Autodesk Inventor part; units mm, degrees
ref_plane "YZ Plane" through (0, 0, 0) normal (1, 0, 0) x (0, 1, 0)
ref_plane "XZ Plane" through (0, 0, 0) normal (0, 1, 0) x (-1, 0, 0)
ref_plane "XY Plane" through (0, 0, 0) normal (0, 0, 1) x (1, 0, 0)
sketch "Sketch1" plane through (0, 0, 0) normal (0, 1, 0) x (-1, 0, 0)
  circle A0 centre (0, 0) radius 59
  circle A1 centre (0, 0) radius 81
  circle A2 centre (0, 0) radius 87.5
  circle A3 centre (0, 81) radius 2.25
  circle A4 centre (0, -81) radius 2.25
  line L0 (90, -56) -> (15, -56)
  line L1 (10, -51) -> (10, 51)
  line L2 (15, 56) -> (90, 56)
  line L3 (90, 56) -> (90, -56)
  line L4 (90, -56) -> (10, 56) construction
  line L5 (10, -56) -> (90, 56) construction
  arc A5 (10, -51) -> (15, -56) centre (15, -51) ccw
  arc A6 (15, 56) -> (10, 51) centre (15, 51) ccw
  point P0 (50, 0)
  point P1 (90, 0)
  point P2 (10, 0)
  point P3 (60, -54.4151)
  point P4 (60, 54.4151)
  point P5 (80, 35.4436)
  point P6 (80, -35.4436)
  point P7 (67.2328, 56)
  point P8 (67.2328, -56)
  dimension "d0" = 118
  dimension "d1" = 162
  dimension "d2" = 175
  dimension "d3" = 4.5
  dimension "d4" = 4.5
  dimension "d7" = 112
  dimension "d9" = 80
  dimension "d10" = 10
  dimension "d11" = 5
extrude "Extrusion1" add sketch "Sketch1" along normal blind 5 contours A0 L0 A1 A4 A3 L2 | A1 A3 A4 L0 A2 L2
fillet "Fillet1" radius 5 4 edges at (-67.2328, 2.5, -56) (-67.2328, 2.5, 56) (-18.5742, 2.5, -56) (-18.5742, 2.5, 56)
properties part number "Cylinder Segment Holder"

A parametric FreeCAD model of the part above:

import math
import FreeCAD as App
import Part
import Sketcher


def edges_at(feature, points):
    """Names of the edges that pass closest to the given points."""
    edges = feature.Shape.Edges
    near = lambda p: min(range(len(edges)), key=lambda i: edges[i].distToShape(Part.Vertex(*p))[0])
    return sorted({f"Edge{near(p) + 1}" for p in points})

doc = App.newDocument("Part")
body = doc.addObject("PartDesign::Body", "Body")

# Sketch on XZ plane
sketch1 = body.newObject("Sketcher::SketchObject", "Sketch")
sketch1.AttachmentSupport = (doc.getObject("XZ_Plane"), [""])
sketch1.MapMode = "FlatFace"
sketch1.addGeometry(Part.ArcOfCircle(Part.Circle(App.Vector(0, 0, 0), App.Vector(0, 0, 1), 59), math.radians(-108.349739), math.radians(108.349739)), False)
sketch1.addGeometry(Part.LineSegment(App.Vector(-18.574176, 56, 0), App.Vector(-67.232804, 56, 0)), False)
sketch1.addGeometry(Part.ArcOfCircle(Part.Circle(App.Vector(0, 0, 0), App.Vector(0, 0, 1), 87.5), math.radians(-140.208181), math.radians(140.208181)), False)
sketch1.addGeometry(Part.LineSegment(App.Vector(-67.232804, -56, 0), App.Vector(-18.574176, -56, 0)), False)
sketch1.addGeometry(Part.Circle(App.Vector(0, -81, 0), App.Vector(0, 0, 1), 2.25), False)
sketch1.addGeometry(Part.Circle(App.Vector(0, 81, 0), App.Vector(0, 0, 1), 2.25), False)
sketch1.addConstraint(Sketcher.Constraint("Coincident", 0, 2, 1, 1))
sketch1.addConstraint(Sketcher.Constraint("Coincident", 1, 2, 2, 2))
sketch1.addConstraint(Sketcher.Constraint("Coincident", 2, 1, 3, 1))
sketch1.addConstraint(Sketcher.Constraint("Coincident", 3, 2, 0, 1))
sketch1.addConstraint(Sketcher.Constraint("Horizontal", 1))
sketch1.addConstraint(Sketcher.Constraint("Horizontal", 3))
sketch1.addConstraint(Sketcher.Constraint("Coincident", 0, 3, -1, 1))
sketch1.addConstraint(Sketcher.Constraint("Coincident", 2, 3, -1, 1))
sketch1.addConstraint(Sketcher.Constraint("Equal", 4, 5))
sketch1.addConstraint(Sketcher.Constraint("Symmetric", 4, 3, 5, 3, -1, 1))
sketch1.addConstraint(Sketcher.Constraint("PointOnObject", 4, 3, -2))
sketch1.addConstraint(Sketcher.Constraint("Vertical", 1, 2, 2, 1))
sketch1.addConstraint(Sketcher.Constraint("Radius", 0, 59.0))
sketch1.addConstraint(Sketcher.Constraint("Diameter", 4, 4.5))
sketch1.addConstraint(Sketcher.Constraint("Radius", 2, 87.5))
sketch1.addConstraint(Sketcher.Constraint("DistanceY", 4, 3, 5, 3, 162.0))
sketch1.addConstraint(Sketcher.Constraint("DistanceY", 2, 1, 1, 2, 112.0))
pad1 = body.newObject("PartDesign::Pad", "Pad")
pad1.Profile = sketch1
pad1.Length = 5
pad1.Reversed = True
doc.recompute()

fillet = body.newObject("PartDesign::Fillet", "Fillet")
fillet.Base = (pad1, edges_at(pad1, [
    (-67.233, 2.5, -56),
    (-67.233, 2.5, 56),
    (-18.574, 2.5, -56),
    (-18.574, 2.5, 56),
]))
fillet.Radius = 5

doc.recompute()
